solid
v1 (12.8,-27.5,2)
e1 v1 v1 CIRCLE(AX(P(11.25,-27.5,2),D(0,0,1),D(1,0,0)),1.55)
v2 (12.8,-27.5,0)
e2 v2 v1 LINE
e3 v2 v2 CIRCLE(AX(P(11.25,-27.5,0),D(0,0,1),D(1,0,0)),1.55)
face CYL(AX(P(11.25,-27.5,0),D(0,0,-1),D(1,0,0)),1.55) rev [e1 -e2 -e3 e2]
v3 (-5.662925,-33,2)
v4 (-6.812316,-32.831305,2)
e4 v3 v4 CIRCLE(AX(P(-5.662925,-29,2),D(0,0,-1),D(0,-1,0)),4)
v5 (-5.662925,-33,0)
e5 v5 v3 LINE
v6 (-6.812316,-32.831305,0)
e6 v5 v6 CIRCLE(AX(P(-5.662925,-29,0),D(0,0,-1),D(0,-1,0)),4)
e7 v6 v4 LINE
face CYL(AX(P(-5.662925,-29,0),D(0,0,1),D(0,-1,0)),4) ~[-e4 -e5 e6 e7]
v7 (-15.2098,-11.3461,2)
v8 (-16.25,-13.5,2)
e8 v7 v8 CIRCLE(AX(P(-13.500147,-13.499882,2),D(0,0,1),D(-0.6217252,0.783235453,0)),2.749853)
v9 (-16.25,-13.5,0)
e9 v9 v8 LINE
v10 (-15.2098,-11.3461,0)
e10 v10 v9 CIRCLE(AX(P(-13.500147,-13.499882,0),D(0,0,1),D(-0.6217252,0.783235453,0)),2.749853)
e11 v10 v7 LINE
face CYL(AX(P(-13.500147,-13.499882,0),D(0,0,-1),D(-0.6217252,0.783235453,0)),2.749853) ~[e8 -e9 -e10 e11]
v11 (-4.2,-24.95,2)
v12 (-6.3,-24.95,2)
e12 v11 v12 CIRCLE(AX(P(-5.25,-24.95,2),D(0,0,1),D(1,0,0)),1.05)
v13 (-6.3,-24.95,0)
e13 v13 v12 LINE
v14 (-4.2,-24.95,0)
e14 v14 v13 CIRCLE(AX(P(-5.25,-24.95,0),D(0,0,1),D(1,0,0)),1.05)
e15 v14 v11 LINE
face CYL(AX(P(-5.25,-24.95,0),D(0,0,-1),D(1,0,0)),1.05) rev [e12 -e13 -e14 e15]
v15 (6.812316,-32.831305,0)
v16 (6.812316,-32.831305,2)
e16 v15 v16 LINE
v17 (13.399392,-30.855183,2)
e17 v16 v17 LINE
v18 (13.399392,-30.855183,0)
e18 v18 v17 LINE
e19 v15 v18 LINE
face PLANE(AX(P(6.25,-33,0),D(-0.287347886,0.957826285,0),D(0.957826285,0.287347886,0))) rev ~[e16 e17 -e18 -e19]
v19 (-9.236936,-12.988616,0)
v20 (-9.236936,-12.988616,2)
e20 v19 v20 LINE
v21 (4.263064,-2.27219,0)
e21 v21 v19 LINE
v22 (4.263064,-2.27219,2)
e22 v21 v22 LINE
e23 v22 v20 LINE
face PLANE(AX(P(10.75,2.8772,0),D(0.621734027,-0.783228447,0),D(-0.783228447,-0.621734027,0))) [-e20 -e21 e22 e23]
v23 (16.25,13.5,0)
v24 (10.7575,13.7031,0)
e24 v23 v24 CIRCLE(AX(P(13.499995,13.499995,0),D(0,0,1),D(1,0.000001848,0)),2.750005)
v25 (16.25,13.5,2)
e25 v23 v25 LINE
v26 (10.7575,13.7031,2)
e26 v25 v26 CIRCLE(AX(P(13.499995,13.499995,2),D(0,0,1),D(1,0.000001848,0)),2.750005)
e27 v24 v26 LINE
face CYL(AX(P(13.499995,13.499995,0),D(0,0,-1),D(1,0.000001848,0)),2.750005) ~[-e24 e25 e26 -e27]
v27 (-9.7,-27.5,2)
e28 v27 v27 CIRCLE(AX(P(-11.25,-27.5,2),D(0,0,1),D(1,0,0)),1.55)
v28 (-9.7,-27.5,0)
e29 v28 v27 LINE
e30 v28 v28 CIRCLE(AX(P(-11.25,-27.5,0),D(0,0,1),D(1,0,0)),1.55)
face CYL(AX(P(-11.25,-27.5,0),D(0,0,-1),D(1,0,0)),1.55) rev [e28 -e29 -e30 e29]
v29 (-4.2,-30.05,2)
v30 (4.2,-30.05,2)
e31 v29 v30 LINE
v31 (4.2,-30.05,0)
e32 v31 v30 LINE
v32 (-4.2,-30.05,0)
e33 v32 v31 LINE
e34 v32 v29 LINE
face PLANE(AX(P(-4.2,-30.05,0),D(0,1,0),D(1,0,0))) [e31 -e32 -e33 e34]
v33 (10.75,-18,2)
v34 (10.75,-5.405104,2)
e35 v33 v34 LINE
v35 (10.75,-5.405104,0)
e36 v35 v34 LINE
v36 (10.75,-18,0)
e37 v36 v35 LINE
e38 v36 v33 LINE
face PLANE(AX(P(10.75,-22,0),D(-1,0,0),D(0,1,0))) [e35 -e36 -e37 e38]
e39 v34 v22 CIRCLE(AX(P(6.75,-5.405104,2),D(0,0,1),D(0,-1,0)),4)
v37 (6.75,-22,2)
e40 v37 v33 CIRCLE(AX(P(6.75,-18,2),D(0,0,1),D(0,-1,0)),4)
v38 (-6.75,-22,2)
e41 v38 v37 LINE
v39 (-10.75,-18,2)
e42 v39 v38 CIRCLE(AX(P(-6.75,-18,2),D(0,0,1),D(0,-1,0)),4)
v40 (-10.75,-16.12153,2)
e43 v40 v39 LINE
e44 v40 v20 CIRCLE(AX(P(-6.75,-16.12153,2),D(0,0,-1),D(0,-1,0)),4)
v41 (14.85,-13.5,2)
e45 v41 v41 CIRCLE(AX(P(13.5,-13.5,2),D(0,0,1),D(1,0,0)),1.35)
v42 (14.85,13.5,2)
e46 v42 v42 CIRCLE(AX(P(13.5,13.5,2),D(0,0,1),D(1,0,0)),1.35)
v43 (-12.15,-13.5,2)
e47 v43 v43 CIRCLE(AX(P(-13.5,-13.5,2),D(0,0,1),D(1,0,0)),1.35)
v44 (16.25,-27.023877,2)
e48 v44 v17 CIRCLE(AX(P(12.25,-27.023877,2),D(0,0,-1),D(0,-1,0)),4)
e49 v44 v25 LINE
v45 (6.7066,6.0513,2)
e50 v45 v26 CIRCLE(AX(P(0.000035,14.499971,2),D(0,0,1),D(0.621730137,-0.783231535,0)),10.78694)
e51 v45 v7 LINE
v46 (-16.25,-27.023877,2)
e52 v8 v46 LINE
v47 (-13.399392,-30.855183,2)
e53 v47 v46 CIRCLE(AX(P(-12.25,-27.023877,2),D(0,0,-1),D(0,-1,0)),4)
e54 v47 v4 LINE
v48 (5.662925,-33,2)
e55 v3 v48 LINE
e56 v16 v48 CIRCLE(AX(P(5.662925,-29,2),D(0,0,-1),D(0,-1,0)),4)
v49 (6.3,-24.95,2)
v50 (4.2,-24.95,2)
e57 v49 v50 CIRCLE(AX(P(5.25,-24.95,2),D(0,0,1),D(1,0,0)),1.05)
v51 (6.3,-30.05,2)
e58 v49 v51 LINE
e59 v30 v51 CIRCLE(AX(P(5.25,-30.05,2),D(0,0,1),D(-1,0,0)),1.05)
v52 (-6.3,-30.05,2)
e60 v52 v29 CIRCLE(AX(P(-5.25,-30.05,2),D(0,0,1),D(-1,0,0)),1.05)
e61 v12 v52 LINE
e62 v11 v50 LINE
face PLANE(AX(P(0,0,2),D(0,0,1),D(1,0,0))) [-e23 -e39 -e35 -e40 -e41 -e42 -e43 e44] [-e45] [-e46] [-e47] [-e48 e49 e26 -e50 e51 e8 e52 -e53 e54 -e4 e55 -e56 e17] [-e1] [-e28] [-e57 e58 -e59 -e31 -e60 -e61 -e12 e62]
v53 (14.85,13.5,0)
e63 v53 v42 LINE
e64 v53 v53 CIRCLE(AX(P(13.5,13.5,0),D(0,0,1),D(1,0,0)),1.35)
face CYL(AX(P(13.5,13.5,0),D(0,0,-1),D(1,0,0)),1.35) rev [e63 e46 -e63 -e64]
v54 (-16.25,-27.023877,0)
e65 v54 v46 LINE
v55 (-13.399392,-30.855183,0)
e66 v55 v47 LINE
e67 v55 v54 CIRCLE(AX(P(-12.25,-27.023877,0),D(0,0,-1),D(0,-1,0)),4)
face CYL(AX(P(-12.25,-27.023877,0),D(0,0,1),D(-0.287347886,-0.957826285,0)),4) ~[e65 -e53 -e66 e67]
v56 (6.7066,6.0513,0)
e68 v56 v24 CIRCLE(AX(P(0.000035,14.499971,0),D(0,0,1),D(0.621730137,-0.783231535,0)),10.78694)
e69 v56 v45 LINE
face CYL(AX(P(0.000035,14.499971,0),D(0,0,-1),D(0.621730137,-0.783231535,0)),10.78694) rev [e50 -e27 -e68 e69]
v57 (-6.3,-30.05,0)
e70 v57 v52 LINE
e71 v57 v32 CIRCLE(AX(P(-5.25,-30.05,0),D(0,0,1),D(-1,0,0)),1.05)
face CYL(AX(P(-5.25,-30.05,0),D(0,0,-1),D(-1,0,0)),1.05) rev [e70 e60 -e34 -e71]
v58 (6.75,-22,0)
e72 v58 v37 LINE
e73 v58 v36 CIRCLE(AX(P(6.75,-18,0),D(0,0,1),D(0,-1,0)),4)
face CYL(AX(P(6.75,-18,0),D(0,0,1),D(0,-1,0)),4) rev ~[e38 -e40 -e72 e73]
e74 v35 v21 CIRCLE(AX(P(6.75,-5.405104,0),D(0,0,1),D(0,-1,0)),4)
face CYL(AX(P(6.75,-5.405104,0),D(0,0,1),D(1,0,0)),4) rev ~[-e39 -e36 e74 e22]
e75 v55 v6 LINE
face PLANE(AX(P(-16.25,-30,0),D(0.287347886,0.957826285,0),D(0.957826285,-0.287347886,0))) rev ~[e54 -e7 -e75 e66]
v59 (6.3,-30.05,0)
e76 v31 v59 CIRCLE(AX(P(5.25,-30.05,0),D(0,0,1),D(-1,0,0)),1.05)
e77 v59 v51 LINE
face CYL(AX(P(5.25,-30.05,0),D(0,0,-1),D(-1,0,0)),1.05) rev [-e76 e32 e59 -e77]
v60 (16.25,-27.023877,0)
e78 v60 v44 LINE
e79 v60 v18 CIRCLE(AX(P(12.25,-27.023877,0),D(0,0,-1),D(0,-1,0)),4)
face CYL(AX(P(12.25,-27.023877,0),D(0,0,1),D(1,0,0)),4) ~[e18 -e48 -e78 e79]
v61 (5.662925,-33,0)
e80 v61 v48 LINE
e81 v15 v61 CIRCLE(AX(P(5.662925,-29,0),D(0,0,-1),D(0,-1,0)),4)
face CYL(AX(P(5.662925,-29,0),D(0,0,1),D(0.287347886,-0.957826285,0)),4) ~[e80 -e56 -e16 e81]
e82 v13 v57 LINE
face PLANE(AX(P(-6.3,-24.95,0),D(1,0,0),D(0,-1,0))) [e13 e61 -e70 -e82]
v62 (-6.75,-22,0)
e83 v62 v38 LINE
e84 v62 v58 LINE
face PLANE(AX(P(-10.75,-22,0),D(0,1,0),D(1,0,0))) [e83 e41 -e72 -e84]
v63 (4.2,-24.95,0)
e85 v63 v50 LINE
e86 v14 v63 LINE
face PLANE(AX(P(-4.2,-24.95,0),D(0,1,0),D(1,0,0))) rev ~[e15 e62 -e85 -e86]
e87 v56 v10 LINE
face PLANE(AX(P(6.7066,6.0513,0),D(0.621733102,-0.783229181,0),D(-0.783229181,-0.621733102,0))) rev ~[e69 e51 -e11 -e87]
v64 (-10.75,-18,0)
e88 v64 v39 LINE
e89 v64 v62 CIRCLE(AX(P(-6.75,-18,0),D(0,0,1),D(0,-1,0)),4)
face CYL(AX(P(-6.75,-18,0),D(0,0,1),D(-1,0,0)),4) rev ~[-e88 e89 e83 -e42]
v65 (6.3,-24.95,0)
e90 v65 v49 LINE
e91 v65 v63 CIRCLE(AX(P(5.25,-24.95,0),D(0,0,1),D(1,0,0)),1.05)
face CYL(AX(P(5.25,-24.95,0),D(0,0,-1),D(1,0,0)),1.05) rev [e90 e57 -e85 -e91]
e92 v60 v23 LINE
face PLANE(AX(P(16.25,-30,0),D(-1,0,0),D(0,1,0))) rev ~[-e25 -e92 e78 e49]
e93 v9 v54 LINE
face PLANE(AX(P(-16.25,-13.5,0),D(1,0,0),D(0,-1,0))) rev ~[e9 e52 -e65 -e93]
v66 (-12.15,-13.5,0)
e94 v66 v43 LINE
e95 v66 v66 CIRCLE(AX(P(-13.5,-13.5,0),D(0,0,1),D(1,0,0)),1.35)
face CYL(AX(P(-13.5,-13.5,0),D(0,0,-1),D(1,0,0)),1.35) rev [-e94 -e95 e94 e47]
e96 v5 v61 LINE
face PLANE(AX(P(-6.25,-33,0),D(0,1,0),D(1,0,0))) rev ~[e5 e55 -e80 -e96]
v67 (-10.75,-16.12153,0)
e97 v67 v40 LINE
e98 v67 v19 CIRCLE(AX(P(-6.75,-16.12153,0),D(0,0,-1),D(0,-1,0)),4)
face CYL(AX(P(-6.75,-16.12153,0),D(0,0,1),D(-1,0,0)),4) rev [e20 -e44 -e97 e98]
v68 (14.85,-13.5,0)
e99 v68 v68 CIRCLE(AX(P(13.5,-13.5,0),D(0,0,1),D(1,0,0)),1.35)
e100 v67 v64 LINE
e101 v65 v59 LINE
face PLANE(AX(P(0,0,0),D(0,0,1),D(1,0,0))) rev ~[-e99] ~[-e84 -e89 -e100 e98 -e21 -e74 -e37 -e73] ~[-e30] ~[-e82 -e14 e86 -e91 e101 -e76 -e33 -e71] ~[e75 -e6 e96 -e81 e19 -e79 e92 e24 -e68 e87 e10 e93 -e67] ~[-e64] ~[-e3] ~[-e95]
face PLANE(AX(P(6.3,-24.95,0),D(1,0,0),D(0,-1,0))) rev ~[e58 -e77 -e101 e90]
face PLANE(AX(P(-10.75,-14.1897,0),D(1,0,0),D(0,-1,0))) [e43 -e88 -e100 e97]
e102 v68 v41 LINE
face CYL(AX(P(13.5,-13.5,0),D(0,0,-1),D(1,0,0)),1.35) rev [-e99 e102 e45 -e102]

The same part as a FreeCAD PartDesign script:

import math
import FreeCAD as App
import Part
import Sketcher

V = App.Vector


def edges_at(feature, points):
    """Names of the edges that pass closest to the given points."""
    edges = feature.Shape.Edges
    near = lambda p: min(range(len(edges)), key=lambda i: edges[i].distToShape(Part.Vertex(*p))[0])
    return sorted({f"Edge{near(p) + 1}" for p in points})

doc = App.newDocument("Part")
body = doc.addObject("PartDesign::Body", "Body")

sketch1 = body.newObject("Sketcher::SketchObject", "Sketch")
sketch1.AttachmentSupport = (doc.getObject("XY_Plane"), [""])
sketch1.MapMode = "FlatFace"
sketch1.addGeometry([
    Part.ArcOfCircle(Part.Circle(V(-13.5, -13.5, 0), V(0, 0, 1), 2.8), math.radians(128), math.radians(180)),
    Part.LineSegment(V(-16.2, -13.5, 0), V(-16.2, -30, 0)),
    Part.LineSegment(V(-16.2, -30, 0), V(-6.2, -33, 0)),
    Part.LineSegment(V(-6.2, -33, 0), V(6.2, -33, 0)),
    Part.LineSegment(V(6.2, -33, 0), V(16.2, -30, 0)),
    Part.LineSegment(V(16.2, -30, 0), V(16.2, 13.5, 0)),
    Part.ArcOfCircle(Part.Circle(V(13.5, 13.5, 0), V(0, 0, 1), 2.8), math.radians(0), math.radians(176)),
    Part.ArcOfCircle(Part.Circle(V(0, 14.5, 0), V(0, 0, 1), 10.8), math.radians(-52), math.radians(-4)),
    Part.LineSegment(V(6.7, 6.1, 0), V(-15.2, -11.3, 0)),
    Part.Circle(V(-11.2, -27.5, 0), V(0, 0, 1), 1.6),
    Part.Circle(V(-13.5, -13.5, 0), V(0, 0, 1), 1.4),
    Part.LineSegment(V(-6.3, -30.1, 0), V(-6.3, -24.9, 0)),
    Part.ArcOfCircle(Part.Circle(V(-5.2, -24.9, 0), V(0, 0, 1), 1.1), math.radians(0), math.radians(180)),
    Part.LineSegment(V(-4.2, -24.9, 0), V(4.2, -24.9, 0)),
    Part.ArcOfCircle(Part.Circle(V(5.2, -24.9, 0), V(0, 0, 1), 1), math.radians(0), math.radians(180)),
    Part.LineSegment(V(6.3, -24.9, 0), V(6.3, -30.1, 0)),
    Part.ArcOfCircle(Part.Circle(V(5.2, -30.1, 0), V(0, 0, 1), 1), math.radians(180), math.radians(360)),
    Part.LineSegment(V(4.2, -30.1, 0), V(-4.2, -30.1, 0)),
    Part.ArcOfCircle(Part.Circle(V(-5.2, -30.1, 0), V(0, 0, 1), 1), math.radians(180), math.radians(360)),
    Part.Circle(V(11.2, -27.5, 0), V(0, 0, 1), 1.6),
    Part.LineSegment(V(-10.8, -22, 0), V(-10.8, -14.2, 0)),
    Part.LineSegment(V(-10.8, -14.2, 0), V(10.8, 2.9, 0)),
    Part.LineSegment(V(10.8, 2.9, 0), V(10.8, -22, 0)),
    Part.LineSegment(V(10.8, -22, 0), V(-10.8, -22, 0)),
    Part.Circle(V(13.5, -13.5, 0), V(0, 0, 1), 1.4),
    Part.Circle(V(13.5, 13.5, 0), V(0, 0, 1), 1.4),
], False)
sketch1.addConstraint([
    Sketcher.Constraint("Tangent", 0, 2, 1, 1),
    Sketcher.Constraint("Coincident", 1, 2, 2, 1),
    Sketcher.Constraint("Coincident", 2, 2, 3, 1),
    Sketcher.Constraint("Coincident", 3, 2, 4, 1),
    Sketcher.Constraint("Coincident", 4, 2, 5, 1),
    Sketcher.Constraint("Tangent", 5, 2, 6, 1),
    Sketcher.Constraint("Tangent", 6, 2, 7, 2),
    Sketcher.Constraint("Tangent", 7, 1, 8, 1),
    Sketcher.Constraint("Tangent", 8, 2, 0, 1),
    Sketcher.Constraint("Tangent", 11, 2, 12, 2),
    Sketcher.Constraint("Coincident", 12, 1, 13, 1),
    Sketcher.Constraint("Coincident", 13, 2, 14, 2),
    Sketcher.Constraint("Tangent", 14, 1, 15, 1),
    Sketcher.Constraint("Tangent", 15, 2, 16, 2),
    Sketcher.Constraint("Coincident", 16, 1, 17, 1),
    Sketcher.Constraint("Coincident", 17, 2, 18, 2),
    Sketcher.Constraint("Tangent", 18, 1, 11, 1),
    Sketcher.Constraint("Coincident", 20, 2, 21, 1),
    Sketcher.Constraint("Coincident", 21, 2, 22, 1),
    Sketcher.Constraint("Coincident", 22, 2, 23, 1),
    Sketcher.Constraint("Coincident", 23, 2, 20, 1),
    Sketcher.Constraint("Vertical", 1),
    Sketcher.Constraint("Horizontal", 3),
    Sketcher.Constraint("Vertical", 5),
    Sketcher.Constraint("Vertical", 11),
    Sketcher.Constraint("Horizontal", 13),
    Sketcher.Constraint("Vertical", 15),
    Sketcher.Constraint("Horizontal", 17),
    Sketcher.Constraint("Vertical", 20),
    Sketcher.Constraint("Vertical", 22),
    Sketcher.Constraint("Horizontal", 23),
    Sketcher.Constraint("Coincident", 10, 3, 0, 3),
    Sketcher.Constraint("Coincident", 25, 3, 6, 3),
    Sketcher.Constraint("Equal", 0, 6),
    Sketcher.Constraint("Equal", 12, 14),
    Sketcher.Constraint("Equal", 14, 16),
    Sketcher.Constraint("Equal", 16, 18),
    Sketcher.Constraint("Equal", 9, 19),
    Sketcher.Constraint("Equal", 10, 24),
    Sketcher.Constraint("Equal", 24, 25),
    Sketcher.Constraint("Symmetric", 0, 3, 6, 3, -1, 1),
    Sketcher.Constraint("Symmetric", 12, 3, 14, 3, -2),
    Sketcher.Constraint("Symmetric", 9, 3, 19, 3, -2),
    Sketcher.Constraint("Symmetric", 0, 3, 24, 3, -2),
    Sketcher.Constraint("PointOnObject", 7, 3, -2),
    Sketcher.Constraint("Parallel", 8, 21),
    Sketcher.Constraint("Horizontal", 16, 3, 18, 3),
    Sketcher.Constraint("Horizontal", 1, 2, 4, 2),
    Sketcher.Constraint("Horizontal", 11, 2, 12, 1),
    Sketcher.Constraint("Horizontal", 15, 2, 16, 1),
    Sketcher.Constraint("Equal", 2, 4),
    Sketcher.Constraint("Diameter", 9, 3.1),
    Sketcher.Constraint("Diameter", 10, 2.7),
    Sketcher.Constraint("Radius", 0, 2.75),
    Sketcher.Constraint("Radius", 12, 1.05),
    Sketcher.Constraint("DistanceX", 0, 3, 6, 3, 27.0),
    Sketcher.Constraint("DistanceY", 0, 3, 6, 3, 27.0),
    Sketcher.Constraint("DistanceY", 6, 3, 7, 3, 1.0),
    Sketcher.Constraint("DistanceX", 0, 2, 9, 3, 5.0),
    Sketcher.Constraint("DistanceX", 2, 2, 18, 3, 1.0),
    Sketcher.Constraint("DistanceX", 9, 3, 2, 2, 5.0),
    Sketcher.Constraint("DistanceY", 2, 2, 1, 2, 3.0),
    Sketcher.Constraint("DistanceY", 2, 2, 9, 3, 5.5),
    Sketcher.Constraint("DistanceX", 0, 2, 20, 2, 5.5),
    Sketcher.Constraint("DistanceX", 21, 2, 5, 2, 5.5),
    Sketcher.Constraint("DistanceY", 19, 3, 22, 2, 5.5),
    Sketcher.Constraint("DistanceY", 18, 3, 1, 2, 0.05),
    Sketcher.Constraint("DistanceY", 1, 2, 1, 1, 16.5),
    Sketcher.Constraint("DistanceY", 11, 1, 11, 2, 5.1),
    Sketcher.Constraint("DistanceY", 20, 1, 20, 2, 7.8103),
])
pad1 = body.newObject("PartDesign::Pad", "Pad")
pad1.Profile = sketch1
pad1.Length = 2
doc.recompute()

fillet = body.newObject("PartDesign::Fillet", "Fillet")
fillet.Base = (pad1, edges_at(pad1, [
    (10.75, 2.877, 1),
    (-10.75, -22, 1),
    (-10.75, -14.19, 1),
    (10.75, -22, 1),
    (16.25, -30, 1),
    (-16.25, -30, 1),
    (-6.25, -33, 1),
    (6.25, -33, 1),
]))
fillet.Radius = 4

doc.recompute()
